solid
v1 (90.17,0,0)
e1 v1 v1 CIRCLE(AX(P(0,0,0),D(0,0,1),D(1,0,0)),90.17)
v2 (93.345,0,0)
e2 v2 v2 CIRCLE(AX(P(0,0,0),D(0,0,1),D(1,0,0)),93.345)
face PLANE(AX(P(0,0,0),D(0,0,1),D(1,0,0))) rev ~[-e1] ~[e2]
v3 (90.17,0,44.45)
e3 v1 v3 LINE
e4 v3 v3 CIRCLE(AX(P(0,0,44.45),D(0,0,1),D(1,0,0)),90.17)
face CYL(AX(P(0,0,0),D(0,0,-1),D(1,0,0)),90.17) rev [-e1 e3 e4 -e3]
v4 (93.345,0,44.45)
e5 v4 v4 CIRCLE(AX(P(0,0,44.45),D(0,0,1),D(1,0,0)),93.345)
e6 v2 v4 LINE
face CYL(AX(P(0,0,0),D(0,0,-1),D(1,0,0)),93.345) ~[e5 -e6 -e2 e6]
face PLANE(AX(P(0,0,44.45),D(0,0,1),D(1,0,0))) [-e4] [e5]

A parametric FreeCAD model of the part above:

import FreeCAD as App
import Part
import Sketcher
from FreeCAD import Vector
Q = App.Units.Quantity

doc = App.newDocument("Part")
body = doc.addObject("PartDesign::Body", "Body")

sketch1 = doc.addObject("Sketcher::SketchObject", "Sketch")
body.addObject(sketch1)
sketch1.AttachmentSupport = (doc.XY_Plane, [""])
sketch1.MapMode = "FlatFace"
sketch1.addGeometry([
    Part.Circle(Vector(0, 0, 0), Vector(0, 0, 1), 93.345),
    Part.Circle(Vector(0, 0, 0), Vector(0, 0, 1), 90.17),
], False)
sketch1.addConstraint([
    Sketcher.Constraint("Coincident", 0, 3, -1, 1),
    Sketcher.Constraint("Coincident", 1, 3, -1, 1),
    Sketcher.Constraint("Diameter", 1, Q("7.1 in")),
    Sketcher.Constraint("Diameter", 0, Q("7.35 in")),
])
pad1 = doc.addObject("PartDesign::Pad", "Pad")
body.addObject(pad1)
pad1.Profile = sketch1
pad1.Length = Q("1.75 in")

doc.recompute()
